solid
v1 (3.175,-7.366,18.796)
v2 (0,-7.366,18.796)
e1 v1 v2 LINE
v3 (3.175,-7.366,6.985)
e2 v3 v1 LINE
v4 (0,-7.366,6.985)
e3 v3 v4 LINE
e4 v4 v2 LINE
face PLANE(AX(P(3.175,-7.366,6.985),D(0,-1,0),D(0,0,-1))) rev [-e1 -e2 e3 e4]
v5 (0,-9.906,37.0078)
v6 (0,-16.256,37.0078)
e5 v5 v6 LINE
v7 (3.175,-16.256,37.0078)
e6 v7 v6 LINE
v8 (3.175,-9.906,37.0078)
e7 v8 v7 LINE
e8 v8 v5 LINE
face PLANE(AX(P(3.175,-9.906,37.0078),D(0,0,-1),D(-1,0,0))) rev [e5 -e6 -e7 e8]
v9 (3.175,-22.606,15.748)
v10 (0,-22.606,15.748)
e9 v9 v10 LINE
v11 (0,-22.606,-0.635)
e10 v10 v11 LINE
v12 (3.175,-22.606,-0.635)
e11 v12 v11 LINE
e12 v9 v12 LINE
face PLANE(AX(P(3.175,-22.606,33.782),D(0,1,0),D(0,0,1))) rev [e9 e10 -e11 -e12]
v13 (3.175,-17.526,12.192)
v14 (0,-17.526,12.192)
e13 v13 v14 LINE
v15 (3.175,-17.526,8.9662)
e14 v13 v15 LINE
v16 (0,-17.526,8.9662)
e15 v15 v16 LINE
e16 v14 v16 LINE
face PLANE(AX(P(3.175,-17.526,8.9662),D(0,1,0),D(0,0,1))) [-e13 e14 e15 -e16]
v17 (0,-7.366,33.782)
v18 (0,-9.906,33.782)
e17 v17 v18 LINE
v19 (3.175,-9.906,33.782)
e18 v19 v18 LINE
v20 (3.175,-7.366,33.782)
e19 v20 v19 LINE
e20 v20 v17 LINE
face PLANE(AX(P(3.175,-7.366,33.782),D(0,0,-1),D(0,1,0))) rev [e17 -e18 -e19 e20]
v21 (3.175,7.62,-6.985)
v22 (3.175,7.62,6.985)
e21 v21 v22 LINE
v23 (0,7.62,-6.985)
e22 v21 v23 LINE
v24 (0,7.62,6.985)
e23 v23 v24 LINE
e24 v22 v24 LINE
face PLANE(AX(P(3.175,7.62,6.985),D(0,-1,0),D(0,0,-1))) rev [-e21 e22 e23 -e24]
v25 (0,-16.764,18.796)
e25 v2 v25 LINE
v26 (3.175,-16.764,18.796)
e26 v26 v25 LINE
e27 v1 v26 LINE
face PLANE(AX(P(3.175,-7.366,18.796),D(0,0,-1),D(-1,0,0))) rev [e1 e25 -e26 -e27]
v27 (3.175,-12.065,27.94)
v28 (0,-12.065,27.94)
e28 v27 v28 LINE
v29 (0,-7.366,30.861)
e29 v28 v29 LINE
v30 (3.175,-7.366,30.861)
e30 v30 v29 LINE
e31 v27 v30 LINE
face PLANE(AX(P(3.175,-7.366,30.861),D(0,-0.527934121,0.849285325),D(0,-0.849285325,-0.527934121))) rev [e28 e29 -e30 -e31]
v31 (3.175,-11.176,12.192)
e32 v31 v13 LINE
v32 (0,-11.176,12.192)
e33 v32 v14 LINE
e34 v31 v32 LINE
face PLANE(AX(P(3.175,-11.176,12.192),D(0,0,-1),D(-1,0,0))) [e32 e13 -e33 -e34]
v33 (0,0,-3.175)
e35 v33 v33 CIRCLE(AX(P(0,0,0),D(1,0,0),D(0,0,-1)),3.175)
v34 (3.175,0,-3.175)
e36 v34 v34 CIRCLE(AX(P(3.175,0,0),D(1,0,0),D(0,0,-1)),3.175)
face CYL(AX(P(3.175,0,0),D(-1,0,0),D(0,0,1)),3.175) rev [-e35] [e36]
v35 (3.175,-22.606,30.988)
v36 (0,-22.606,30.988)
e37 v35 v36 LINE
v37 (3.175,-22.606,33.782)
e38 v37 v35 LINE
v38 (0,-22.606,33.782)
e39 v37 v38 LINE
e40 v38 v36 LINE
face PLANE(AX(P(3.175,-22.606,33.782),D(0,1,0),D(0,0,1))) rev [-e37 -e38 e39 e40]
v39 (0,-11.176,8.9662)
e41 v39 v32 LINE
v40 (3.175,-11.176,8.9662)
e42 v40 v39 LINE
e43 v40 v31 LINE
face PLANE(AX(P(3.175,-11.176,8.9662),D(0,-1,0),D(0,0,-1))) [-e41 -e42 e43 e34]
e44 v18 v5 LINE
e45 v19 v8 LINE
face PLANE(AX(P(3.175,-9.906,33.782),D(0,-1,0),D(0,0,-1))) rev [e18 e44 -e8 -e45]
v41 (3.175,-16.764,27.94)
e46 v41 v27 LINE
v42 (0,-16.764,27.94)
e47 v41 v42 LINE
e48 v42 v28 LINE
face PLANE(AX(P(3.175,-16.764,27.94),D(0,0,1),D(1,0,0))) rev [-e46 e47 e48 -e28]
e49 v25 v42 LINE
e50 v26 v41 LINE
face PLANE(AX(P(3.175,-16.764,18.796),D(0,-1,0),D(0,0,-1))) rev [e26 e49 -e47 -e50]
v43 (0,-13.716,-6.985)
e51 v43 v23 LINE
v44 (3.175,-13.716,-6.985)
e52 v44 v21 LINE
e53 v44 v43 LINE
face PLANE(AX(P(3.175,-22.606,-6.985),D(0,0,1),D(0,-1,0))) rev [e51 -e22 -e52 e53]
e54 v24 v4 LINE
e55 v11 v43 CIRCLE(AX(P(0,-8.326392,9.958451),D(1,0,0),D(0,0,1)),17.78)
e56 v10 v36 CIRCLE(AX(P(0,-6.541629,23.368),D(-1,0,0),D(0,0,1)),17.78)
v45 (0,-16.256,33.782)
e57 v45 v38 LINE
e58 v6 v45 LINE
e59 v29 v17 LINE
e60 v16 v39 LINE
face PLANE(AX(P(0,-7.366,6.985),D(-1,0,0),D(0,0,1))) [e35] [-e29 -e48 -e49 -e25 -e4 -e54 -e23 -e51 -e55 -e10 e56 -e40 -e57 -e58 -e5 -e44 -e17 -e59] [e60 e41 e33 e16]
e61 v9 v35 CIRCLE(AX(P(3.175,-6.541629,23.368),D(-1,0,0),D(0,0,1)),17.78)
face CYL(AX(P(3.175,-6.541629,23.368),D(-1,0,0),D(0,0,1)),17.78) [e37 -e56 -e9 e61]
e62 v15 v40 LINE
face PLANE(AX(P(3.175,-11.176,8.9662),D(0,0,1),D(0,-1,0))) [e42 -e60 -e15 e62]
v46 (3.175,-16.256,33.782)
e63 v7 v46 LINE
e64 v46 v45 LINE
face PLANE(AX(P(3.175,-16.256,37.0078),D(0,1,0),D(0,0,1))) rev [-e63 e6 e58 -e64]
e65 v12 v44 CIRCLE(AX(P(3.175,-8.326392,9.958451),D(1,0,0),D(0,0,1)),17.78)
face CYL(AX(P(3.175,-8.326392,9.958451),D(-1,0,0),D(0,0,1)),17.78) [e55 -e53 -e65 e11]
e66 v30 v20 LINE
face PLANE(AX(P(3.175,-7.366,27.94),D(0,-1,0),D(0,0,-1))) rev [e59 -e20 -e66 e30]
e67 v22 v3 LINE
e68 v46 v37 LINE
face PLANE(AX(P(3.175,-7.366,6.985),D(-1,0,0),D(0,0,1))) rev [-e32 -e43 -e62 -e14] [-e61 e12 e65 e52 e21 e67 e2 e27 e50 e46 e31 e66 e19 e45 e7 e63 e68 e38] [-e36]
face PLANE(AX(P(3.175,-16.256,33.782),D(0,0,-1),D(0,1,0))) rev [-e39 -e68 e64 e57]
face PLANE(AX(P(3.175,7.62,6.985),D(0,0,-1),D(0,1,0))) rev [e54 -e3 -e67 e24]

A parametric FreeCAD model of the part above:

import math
import FreeCAD as App
import Part
import Sketcher
from FreeCAD import Vector
Q = App.Units.Quantity

doc = App.newDocument("Part")
body = doc.addObject("PartDesign::Body", "Body")

# Sketch on YZ plane
sketch1 = doc.addObject("Sketcher::SketchObject", "Sketch")
body.addObject(sketch1)
sketch1.AttachmentSupport = (doc.YZ_Plane, [""])
sketch1.MapMode = "FlatFace"
sketch1.addGeometry(Part.LineSegment(Vector(7.62, -6.985, 0), Vector(7.62, 6.985, 0)), False)
sketch1.addGeometry(Part.LineSegment(Vector(7.62, 6.985, 0), Vector(-7.366, 6.985, 0)), False)
sketch1.addGeometry(Part.LineSegment(Vector(-7.366, 6.985, 0), Vector(-7.366, 18.796, 0)), False)
sketch1.addGeometry(Part.LineSegment(Vector(-7.366, 18.796, 0), Vector(-16.764, 18.796, 0)), False)
sketch1.addGeometry(Part.LineSegment(Vector(-16.764, 18.796, 0), Vector(-16.764, 27.94, 0)), False)
sketch1.addGeometry(Part.LineSegment(Vector(-16.764, 27.94, 0), Vector(-7.366, 27.94, 0)), False)
sketch1.addGeometry(Part.LineSegment(Vector(-7.366, 27.94, 0), Vector(-7.366, 33.782, 0)), False)
sketch1.addGeometry(Part.LineSegment(Vector(-7.366, 33.782, 0), Vector(-9.906, 33.782, 0)), False)
sketch1.addGeometry(Part.LineSegment(Vector(-9.906, 33.782, 0), Vector(-9.906, 37.0078, 0)), False)
sketch1.addGeometry(Part.LineSegment(Vector(-9.906, 37.0078, 0), Vector(-16.256, 37.0078, 0)), False)
sketch1.addGeometry(Part.LineSegment(Vector(-16.256, 37.0078, 0), Vector(-16.256, 33.782, 0)), False)
sketch1.addGeometry(Part.LineSegment(Vector(-16.256, 33.782, 0), Vector(-22.606, 33.782, 0)), False)
sketch1.addGeometry(Part.LineSegment(Vector(-22.606, 33.782, 0), Vector(-22.606, -6.985, 0)), False)
sketch1.addGeometry(Part.LineSegment(Vector(-22.606, -6.985, 0), Vector(7.62, -6.985, 0)), False)
sketch1.addGeometry(Part.LineSegment(Vector(-17.526, 12.192, 0), Vector(-11.176, 12.192, 0)), False)
sketch1.addGeometry(Part.LineSegment(Vector(-11.176, 12.192, 0), Vector(-11.176, 8.9662, 0)), False)
sketch1.addGeometry(Part.LineSegment(Vector(-11.176, 8.9662, 0), Vector(-17.526, 8.9662, 0)), False)
sketch1.addGeometry(Part.LineSegment(Vector(-17.526, 8.9662, 0), Vector(-17.526, 12.192, 0)), False)
sketch1.addGeometry(Part.Circle(Vector(0, 0, 0), Vector(0, 0, 1), 3.175), False)
sketch1.addConstraint(Sketcher.Constraint("Coincident", 0, 2, 1, 1))
sketch1.addConstraint(Sketcher.Constraint("Coincident", 1, 2, 2, 1))
sketch1.addConstraint(Sketcher.Constraint("Coincident", 2, 2, 3, 1))
sketch1.addConstraint(Sketcher.Constraint("Coincident", 3, 2, 4, 1))
sketch1.addConstraint(Sketcher.Constraint("Coincident", 4, 2, 5, 1))
sketch1.addConstraint(Sketcher.Constraint("Coincident", 5, 2, 6, 1))
sketch1.addConstraint(Sketcher.Constraint("Coincident", 6, 2, 7, 1))
sketch1.addConstraint(Sketcher.Constraint("Coincident", 7, 2, 8, 1))
sketch1.addConstraint(Sketcher.Constraint("Coincident", 8, 2, 9, 1))
sketch1.addConstraint(Sketcher.Constraint("Coincident", 9, 2, 10, 1))
sketch1.addConstraint(Sketcher.Constraint("Coincident", 10, 2, 11, 1))
sketch1.addConstraint(Sketcher.Constraint("Coincident", 11, 2, 12, 1))
sketch1.addConstraint(Sketcher.Constraint("Coincident", 12, 2, 13, 1))
sketch1.addConstraint(Sketcher.Constraint("Coincident", 13, 2, 0, 1))
sketch1.addConstraint(Sketcher.Constraint("Coincident", 14, 2, 15, 1))
sketch1.addConstraint(Sketcher.Constraint("Coincident", 15, 2, 16, 1))
sketch1.addConstraint(Sketcher.Constraint("Coincident", 16, 2, 17, 1))
sketch1.addConstraint(Sketcher.Constraint("Coincident", 17, 2, 14, 1))
sketch1.addConstraint(Sketcher.Constraint("Vertical", 0))
sketch1.addConstraint(Sketcher.Constraint("Horizontal", 1))
sketch1.addConstraint(Sketcher.Constraint("Vertical", 2))
sketch1.addConstraint(Sketcher.Constraint("Horizontal", 3))
sketch1.addConstraint(Sketcher.Constraint("Vertical", 4))
sketch1.addConstraint(Sketcher.Constraint("Horizontal", 5))
sketch1.addConstraint(Sketcher.Constraint("Vertical", 6))
sketch1.addConstraint(Sketcher.Constraint("Horizontal", 7))
sketch1.addConstraint(Sketcher.Constraint("Vertical", 8))
sketch1.addConstraint(Sketcher.Constraint("Horizontal", 9))
sketch1.addConstraint(Sketcher.Constraint("Vertical", 10))
sketch1.addConstraint(Sketcher.Constraint("Horizontal", 11))
sketch1.addConstraint(Sketcher.Constraint("Vertical", 12))
sketch1.addConstraint(Sketcher.Constraint("Horizontal", 13))
sketch1.addConstraint(Sketcher.Constraint("Horizontal", 14))
sketch1.addConstraint(Sketcher.Constraint("Vertical", 15))
sketch1.addConstraint(Sketcher.Constraint("Horizontal", 16))
sketch1.addConstraint(Sketcher.Constraint("Vertical", 17))
sketch1.addConstraint(Sketcher.Constraint("Coincident", 18, 3, -1, 1))
sketch1.addConstraint(Sketcher.Constraint("Horizontal", 7, 2, 10, 2))
sketch1.addConstraint(Sketcher.Constraint("Vertical", 2, 2, 5, 2))
sketch1.addConstraint(Sketcher.Constraint("Equal", 9, 11))
sketch1.addConstraint(Sketcher.Constraint("Equal", 11, 14))
sketch1.addConstraint(Sketcher.Constraint("Equal", 10, 15))
sketch1.addConstraint(Sketcher.Constraint("Diameter", 18, Q("0.25 in")))
sketch1.addConstraint(Sketcher.Constraint("DistanceX", 7, 2, 7, 1, Q("0.1 in")))
sketch1.addConstraint(Sketcher.Constraint("DistanceX", 1, 2, 1, 1, Q("0.59 in")))
sketch1.addConstraint(Sketcher.Constraint("DistanceX", 3, 2, 3, 1, Q("0.37 in")))
sketch1.addConstraint(Sketcher.Constraint("DistanceX", 9, 2, 9, 1, Q("0.25 in")))
sketch1.addConstraint(Sketcher.Constraint("DistanceY", 0, 1, 0, 2, Q("0.55 in")))
sketch1.addConstraint(Sketcher.Constraint("DistanceY", 4, 1, 4, 2, Q("0.36 in")))
sketch1.addConstraint(Sketcher.Constraint("DistanceY", 6, 1, 6, 2, Q("0.23 in")))
sketch1.addConstraint(Sketcher.Constraint("DistanceX", -1, 1, 0, 2, Q("0.3 in")))
sketch1.addConstraint(Sketcher.Constraint("DistanceY", -1, 1, 4, 2, Q("1.1 in")))
sketch1.addConstraint(Sketcher.Constraint("DistanceX", 16, 2, 1, 2, Q("0.4 in")))
sketch1.addConstraint(Sketcher.Constraint("DistanceY", 2, 1, 2, 2, Q("0.465 in")))
sketch1.addConstraint(Sketcher.Constraint("DistanceY", 8, 1, 8, 2, Q("0.127 in")))
sketch1.addConstraint(Sketcher.Constraint("DistanceY", -1, 1, 14, 2, Q("0.48 in")))
pad1 = doc.addObject("PartDesign::Pad", "Pad")
body.addObject(pad1)
pad1.Profile = sketch1
pad1.Length = Q("0.125 in")

# Sketch on YZ plane
sketch2 = doc.addObject("Sketcher::SketchObject", "Sketch001")
body.addObject(sketch2)
sketch2.AttachmentSupport = (doc.YZ_Plane, [""])
sketch2.MapMode = "FlatFace"
sketch2.addGeometry(Part.ArcOfCircle(Part.Circle(Vector(-6.541629, 23.368, 0), Vector(0, 0, 1), 17.78), math.radians(154.623066), math.radians(205.376934)), False)
sketch2.addGeometry(Part.LineSegment(Vector(-22.606, 30.988, 0), Vector(-22.606, 15.748, 0)), False)
sketch2.addConstraint(Sketcher.Constraint("Coincident", 0, 1, 1, 1))
sketch2.addConstraint(Sketcher.Constraint("Coincident", 1, 2, 0, 2))
sketch2.addConstraint(Sketcher.Constraint("Vertical", 1))
sketch2.addConstraint(Sketcher.Constraint("Radius", 0, Q("0.7 in")))
sketch2.addConstraint(Sketcher.Constraint("DistanceY", 1, 2, 1, 1, Q("0.6 in")))
sketch2.addConstraint(Sketcher.Constraint("DistanceY", -1, 1, 0, 3, Q("0.92 in")))
sketch2.addConstraint(Sketcher.Constraint("DistanceX", 0, 1, -1, 1, Q("0.89 in")))
pad2 = doc.addObject("PartDesign::Pad", "Pad001")
body.addObject(pad2)
pad2.Profile = sketch2
pad2.Length = Q("0.125 in")

# Sketch on YZ plane
sketch3 = doc.addObject("Sketcher::SketchObject", "Sketch002")
body.addObject(sketch3)
sketch3.AttachmentSupport = (doc.YZ_Plane, [""])
sketch3.MapMode = "FlatFace"
sketch3.addGeometry(Part.LineSegment(Vector(-12.065, 27.94, 0), Vector(-7.366, 30.861, 0)), False)
sketch3.addGeometry(Part.LineSegment(Vector(-7.366, 30.861, 0), Vector(-7.366, 27.94, 0)), False)
sketch3.addGeometry(Part.LineSegment(Vector(-7.366, 27.94, 0), Vector(-12.065, 27.94, 0)), False)
sketch3.addGeometry(Part.LineSegment(Vector(-22.606, -6.985, 0), Vector(-22.606, -0.635, 0)), False)
sketch3.addGeometry(Part.ArcOfCircle(Part.Circle(Vector(-8.326392, 9.958451, 0), Vector(0, 0, 1), 17.78), math.radians(-143.429808), math.radians(-107.645548)), False)
sketch3.addGeometry(Part.LineSegment(Vector(-13.716, -6.985, 0), Vector(-22.606, -6.985, 0)), False)
sketch3.addConstraint(Sketcher.Constraint("Coincident", 0, 2, 1, 1))
sketch3.addConstraint(Sketcher.Constraint("Coincident", 1, 2, 2, 1))
sketch3.addConstraint(Sketcher.Constraint("Coincident", 2, 2, 0, 1))
sketch3.addConstraint(Sketcher.Constraint("Coincident", 3, 2, 4, 1))
sketch3.addConstraint(Sketcher.Constraint("Coincident", 4, 2, 5, 1))
sketch3.addConstraint(Sketcher.Constraint("Coincident", 5, 2, 3, 1))
sketch3.addConstraint(Sketcher.Constraint("Vertical", 1))
sketch3.addConstraint(Sketcher.Constraint("Horizontal", 2))
sketch3.addConstraint(Sketcher.Constraint("Vertical", 3))
sketch3.addConstraint(Sketcher.Constraint("Horizontal", 5))
sketch3.addConstraint(Sketcher.Constraint("Radius", 4, Q("0.7 in")))
sketch3.addConstraint(Sketcher.Constraint("DistanceX", 5, 2, 5, 1, Q("0.35 in")))
sketch3.addConstraint(Sketcher.Constraint("DistanceY", 3, 1, 3, 2, Q("0.25 in")))
sketch3.addConstraint(Sketcher.Constraint("DistanceY", -1, 1, 1, 2, Q("1.1 in")))
sketch3.addConstraint(Sketcher.Constraint("DistanceX", 3, 2, 1, 2, Q("0.6 in")))
sketch3.addConstraint(Sketcher.Constraint("DistanceX", 2, 2, 2, 1, Q("0.185 in")))
sketch3.addConstraint(Sketcher.Constraint("DistanceY", 1, 2, 1, 1, Q("0.115 in")))
sketch3.addConstraint(Sketcher.Constraint("DistanceX", 0, 2, -1, 1, Q("0.29 in")))
sketch3.addConstraint(Sketcher.Constraint("DistanceY", 3, 2, 0, 2, Q("1.24 in")))
pocket1 = doc.addObject("PartDesign::Pocket", "Pocket")
body.addObject(pocket1)
pocket1.Profile = sketch3
pocket1.Type = "ThroughAll"
pocket1.Reversed = True

doc.recompute()
